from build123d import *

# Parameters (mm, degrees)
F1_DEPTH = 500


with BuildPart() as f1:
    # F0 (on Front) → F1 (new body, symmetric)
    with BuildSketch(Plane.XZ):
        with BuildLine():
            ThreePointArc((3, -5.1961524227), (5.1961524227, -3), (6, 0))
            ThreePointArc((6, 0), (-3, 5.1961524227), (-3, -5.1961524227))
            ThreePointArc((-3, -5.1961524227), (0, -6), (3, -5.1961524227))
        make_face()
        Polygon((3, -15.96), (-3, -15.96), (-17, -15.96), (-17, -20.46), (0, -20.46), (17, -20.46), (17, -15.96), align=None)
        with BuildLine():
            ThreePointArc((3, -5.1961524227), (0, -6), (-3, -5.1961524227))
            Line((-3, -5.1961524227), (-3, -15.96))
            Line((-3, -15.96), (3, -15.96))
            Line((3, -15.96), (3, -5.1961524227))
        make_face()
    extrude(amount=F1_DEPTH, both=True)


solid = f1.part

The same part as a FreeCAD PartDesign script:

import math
import FreeCAD as App
import Part
import Sketcher

doc = App.newDocument("Part")
body = doc.addObject("PartDesign::Body", "Body")

sketch1 = body.newObject("Sketcher::SketchObject", "Sketch")
sketch1.AttachmentSupport = (doc.getObject("XZ_Plane"), [""])
sketch1.MapMode = "FlatFace"
sketch1.addGeometry(Part.ArcOfCircle(Part.Circle(App.Vector(0, 0, 0), App.Vector(0, 0, 1), 6), math.radians(-60), math.radians(0)), False)
sketch1.addGeometry(Part.ArcOfCircle(Part.Circle(App.Vector(0, 0, 0), App.Vector(0, 0, 1), 6), math.radians(0), math.radians(240)), False)
sketch1.addGeometry(Part.LineSegment(App.Vector(-3, -5.2, 0), App.Vector(-3, -16, 0)), False)
sketch1.addGeometry(Part.LineSegment(App.Vector(-3, -16, 0), App.Vector(-17, -16, 0)), False)
sketch1.addGeometry(Part.LineSegment(App.Vector(-17, -16, 0), App.Vector(-17, -20.5, 0)), False)
sketch1.addGeometry(Part.LineSegment(App.Vector(-17, -20.5, 0), App.Vector(17, -20.5, 0)), False)
sketch1.addGeometry(Part.LineSegment(App.Vector(17, -20.5, 0), App.Vector(17, -16, 0)), False)
sketch1.addGeometry(Part.LineSegment(App.Vector(17, -16, 0), App.Vector(3, -16, 0)), False)
sketch1.addGeometry(Part.LineSegment(App.Vector(3, -16, 0), App.Vector(3, -5.2, 0)), False)
sketch1.addConstraint(Sketcher.Constraint("Tangent", 0, 2, 1, 1))
sketch1.addConstraint(Sketcher.Constraint("Coincident", 1, 2, 2, 1))
sketch1.addConstraint(Sketcher.Constraint("Coincident", 2, 2, 3, 1))
sketch1.addConstraint(Sketcher.Constraint("Coincident", 3, 2, 4, 1))
sketch1.addConstraint(Sketcher.Constraint("Coincident", 4, 2, 5, 1))
sketch1.addConstraint(Sketcher.Constraint("Coincident", 5, 2, 6, 1))
sketch1.addConstraint(Sketcher.Constraint("Coincident", 6, 2, 7, 1))
sketch1.addConstraint(Sketcher.Constraint("Coincident", 7, 2, 8, 1))
sketch1.addConstraint(Sketcher.Constraint("Coincident", 8, 2, 0, 1))
sketch1.addConstraint(Sketcher.Constraint("Vertical", 2))
sketch1.addConstraint(Sketcher.Constraint("Horizontal", 3))
sketch1.addConstraint(Sketcher.Constraint("Vertical", 4))
sketch1.addConstraint(Sketcher.Constraint("Horizontal", 5))
sketch1.addConstraint(Sketcher.Constraint("Vertical", 6))
sketch1.addConstraint(Sketcher.Constraint("Horizontal", 7))
sketch1.addConstraint(Sketcher.Constraint("Vertical", 8))
sketch1.addConstraint(Sketcher.Constraint("Coincident", 0, 3, -1, 1))
sketch1.addConstraint(Sketcher.Constraint("Equal", 0, 1))
sketch1.addConstraint(Sketcher.Constraint("Symmetric", 3, 2, 6, 2, -2))
sketch1.addConstraint(Sketcher.Constraint("PointOnObject", 0, 2, -1))
sketch1.addConstraint(Sketcher.Constraint("Horizontal", 1, 2, 8, 2))
sketch1.addConstraint(Sketcher.Constraint("Radius", 0, 6.0))
sketch1.addConstraint(Sketcher.Constraint("DistanceX", 3, 2, 3, 1, 14.0))
sketch1.addConstraint(Sketcher.Constraint("DistanceX", 5, 1, 5, 2, 34.0))
sketch1.addConstraint(Sketcher.Constraint("DistanceY", 4, 2, 4, 1, 4.5))
sketch1.addConstraint(Sketcher.Constraint("DistanceY", 2, 2, -1, 1, 15.96))
pad1 = body.newObject("PartDesign::Pad", "Pad")
pad1.Profile = sketch1
pad1.Length = 1000
pad1.Midplane = True

doc.recompute()
